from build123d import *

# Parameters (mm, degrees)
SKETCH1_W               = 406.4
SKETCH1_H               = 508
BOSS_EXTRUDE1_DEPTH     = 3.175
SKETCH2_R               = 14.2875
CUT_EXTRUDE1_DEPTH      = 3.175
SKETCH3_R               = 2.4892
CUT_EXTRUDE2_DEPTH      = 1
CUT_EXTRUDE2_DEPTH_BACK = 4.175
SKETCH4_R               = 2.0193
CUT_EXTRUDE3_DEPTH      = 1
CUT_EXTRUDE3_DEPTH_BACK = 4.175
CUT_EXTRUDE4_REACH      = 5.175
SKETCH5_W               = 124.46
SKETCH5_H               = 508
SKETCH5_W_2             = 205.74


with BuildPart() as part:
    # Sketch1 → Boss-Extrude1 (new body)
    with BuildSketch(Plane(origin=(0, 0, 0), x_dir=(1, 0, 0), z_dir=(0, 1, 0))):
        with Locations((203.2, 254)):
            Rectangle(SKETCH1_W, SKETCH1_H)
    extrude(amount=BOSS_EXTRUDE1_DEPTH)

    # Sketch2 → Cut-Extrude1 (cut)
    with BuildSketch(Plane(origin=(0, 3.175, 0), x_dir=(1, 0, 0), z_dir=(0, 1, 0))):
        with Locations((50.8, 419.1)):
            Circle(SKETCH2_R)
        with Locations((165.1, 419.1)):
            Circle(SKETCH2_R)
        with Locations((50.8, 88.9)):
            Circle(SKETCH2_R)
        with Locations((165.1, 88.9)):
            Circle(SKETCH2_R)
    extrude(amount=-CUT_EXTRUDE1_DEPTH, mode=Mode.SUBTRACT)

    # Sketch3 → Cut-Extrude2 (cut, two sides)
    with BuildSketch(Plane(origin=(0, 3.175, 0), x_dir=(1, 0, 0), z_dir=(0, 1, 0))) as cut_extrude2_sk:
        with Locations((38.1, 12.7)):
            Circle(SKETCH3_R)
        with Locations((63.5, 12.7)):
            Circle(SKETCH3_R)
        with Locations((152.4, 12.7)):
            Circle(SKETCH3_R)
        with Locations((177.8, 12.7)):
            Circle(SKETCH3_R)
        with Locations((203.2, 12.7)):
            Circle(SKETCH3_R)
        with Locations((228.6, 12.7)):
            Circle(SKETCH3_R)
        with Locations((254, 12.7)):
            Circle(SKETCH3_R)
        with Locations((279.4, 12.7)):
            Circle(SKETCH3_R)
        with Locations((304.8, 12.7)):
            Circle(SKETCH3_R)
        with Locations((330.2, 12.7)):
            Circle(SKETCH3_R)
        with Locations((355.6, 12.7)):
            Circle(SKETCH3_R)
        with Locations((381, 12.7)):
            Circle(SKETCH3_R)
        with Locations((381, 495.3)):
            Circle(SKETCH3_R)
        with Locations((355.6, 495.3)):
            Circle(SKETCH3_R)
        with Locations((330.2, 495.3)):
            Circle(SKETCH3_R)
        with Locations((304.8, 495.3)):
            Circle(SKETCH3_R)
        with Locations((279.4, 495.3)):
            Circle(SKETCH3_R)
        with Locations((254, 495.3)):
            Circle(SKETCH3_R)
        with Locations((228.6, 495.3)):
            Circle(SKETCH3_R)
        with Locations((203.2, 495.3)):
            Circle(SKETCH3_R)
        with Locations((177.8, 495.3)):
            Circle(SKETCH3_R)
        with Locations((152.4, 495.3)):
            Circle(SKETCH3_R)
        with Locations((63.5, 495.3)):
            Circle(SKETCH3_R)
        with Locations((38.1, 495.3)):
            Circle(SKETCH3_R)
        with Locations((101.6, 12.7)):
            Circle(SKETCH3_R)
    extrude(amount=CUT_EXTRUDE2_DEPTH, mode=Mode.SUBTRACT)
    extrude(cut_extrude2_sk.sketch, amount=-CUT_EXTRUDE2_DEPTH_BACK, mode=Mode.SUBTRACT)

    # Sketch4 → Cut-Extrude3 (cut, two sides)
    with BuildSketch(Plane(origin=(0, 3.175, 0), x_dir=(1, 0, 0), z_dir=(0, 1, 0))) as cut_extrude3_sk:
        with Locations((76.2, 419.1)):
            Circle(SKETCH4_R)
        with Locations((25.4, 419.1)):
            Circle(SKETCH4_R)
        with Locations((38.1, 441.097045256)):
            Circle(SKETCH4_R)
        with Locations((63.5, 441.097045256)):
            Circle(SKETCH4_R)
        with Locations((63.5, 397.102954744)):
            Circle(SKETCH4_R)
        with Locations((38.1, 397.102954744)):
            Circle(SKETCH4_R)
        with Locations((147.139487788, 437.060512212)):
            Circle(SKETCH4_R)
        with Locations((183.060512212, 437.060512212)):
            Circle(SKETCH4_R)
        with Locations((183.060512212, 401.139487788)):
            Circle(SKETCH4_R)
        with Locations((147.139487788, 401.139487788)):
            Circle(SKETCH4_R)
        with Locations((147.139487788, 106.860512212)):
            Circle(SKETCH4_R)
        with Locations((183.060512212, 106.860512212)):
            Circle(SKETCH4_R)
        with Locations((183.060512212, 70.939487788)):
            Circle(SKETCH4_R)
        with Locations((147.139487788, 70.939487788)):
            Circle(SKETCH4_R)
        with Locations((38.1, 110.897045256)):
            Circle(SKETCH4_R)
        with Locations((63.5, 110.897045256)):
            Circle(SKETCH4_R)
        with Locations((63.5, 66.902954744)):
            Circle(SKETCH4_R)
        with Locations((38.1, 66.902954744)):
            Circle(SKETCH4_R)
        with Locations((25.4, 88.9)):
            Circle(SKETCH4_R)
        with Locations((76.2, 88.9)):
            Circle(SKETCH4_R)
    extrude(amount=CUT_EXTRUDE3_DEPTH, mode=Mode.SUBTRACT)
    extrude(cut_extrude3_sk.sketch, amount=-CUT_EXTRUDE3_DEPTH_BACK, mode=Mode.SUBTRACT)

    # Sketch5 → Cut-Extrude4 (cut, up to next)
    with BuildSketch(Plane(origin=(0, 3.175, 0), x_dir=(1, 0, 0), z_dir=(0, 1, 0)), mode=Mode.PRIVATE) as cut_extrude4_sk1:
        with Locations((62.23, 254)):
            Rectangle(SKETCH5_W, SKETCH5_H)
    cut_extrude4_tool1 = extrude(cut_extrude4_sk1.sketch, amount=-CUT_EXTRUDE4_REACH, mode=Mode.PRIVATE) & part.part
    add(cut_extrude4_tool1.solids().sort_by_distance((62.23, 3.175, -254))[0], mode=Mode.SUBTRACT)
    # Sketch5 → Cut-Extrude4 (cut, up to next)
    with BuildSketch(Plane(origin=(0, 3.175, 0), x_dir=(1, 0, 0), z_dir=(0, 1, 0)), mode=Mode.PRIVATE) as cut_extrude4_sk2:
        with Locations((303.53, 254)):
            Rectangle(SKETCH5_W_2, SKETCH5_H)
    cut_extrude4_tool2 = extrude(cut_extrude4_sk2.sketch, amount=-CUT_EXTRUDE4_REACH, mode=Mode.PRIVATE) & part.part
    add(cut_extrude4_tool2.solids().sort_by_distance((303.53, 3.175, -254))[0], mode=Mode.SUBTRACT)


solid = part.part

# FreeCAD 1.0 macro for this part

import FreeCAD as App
import Part
import Sketcher

V = App.Vector
Q = App.Units.Quantity


def add_polygon(sketch, points):
    """Adds a closed chain of lines whose ends are joined by coincident constraints."""
    first, n = sketch.GeometryCount, len(points)
    for a, b in zip(points, points[1:] + points[:1]):
        sketch.addGeometry(Part.LineSegment(App.Vector(*a, 0), App.Vector(*b, 0)), False)
    for i in range(n):
        sketch.addConstraint(Sketcher.Constraint("Coincident", first + i, 2, first + (i + 1) % n, 1))

doc = App.newDocument("Part")
body = doc.addObject("PartDesign::Body", "Body")

# Sketch on XZ plane
sketch1 = body.newObject("Sketcher::SketchObject", "Sketch")
sketch1.AttachmentSupport = (doc.getObject("XZ_Plane"), [""])
sketch1.MapMode = "FlatFace"
add_polygon(sketch1, [(0, -508), (0, 0), (406, 0), (406, -508)])  # lines 0-3
sketch1.addConstraint([
    Sketcher.Constraint("Vertical", 0),
    Sketcher.Constraint("Horizontal", 1),
    Sketcher.Constraint("Vertical", 2),
    Sketcher.Constraint("Horizontal", 3),
    Sketcher.Constraint("Coincident", 0, 2, -1, 1),
    Sketcher.Constraint("DistanceX", 1, 1, 1, 2, Q("16 in")),
    Sketcher.Constraint("DistanceY", 0, 1, 0, 2, Q("20 in")),
])
pad1 = body.newObject("PartDesign::Pad", "Pad")
pad1.Profile = sketch1
pad1.Length = Q("0.125 in")
pad1.Reversed = True

# Sketch on XZ plane
sketch2 = body.newObject("Sketcher::SketchObject", "Sketch001")
sketch2.AttachmentSupport = (doc.getObject("XZ_Plane"), [""])
sketch2.MapMode = "FlatFace"
sketch2.AttachmentOffset = App.Placement(V(0, 0, -0.125 * 25.4), App.Rotation())
sketch2.addGeometry([
    Part.Circle(V(51, -419, 0), V(0, 0, 1), 14),
    Part.Circle(V(165, -419, 0), V(0, 0, 1), 14),
    Part.Circle(V(51, -89, 0), V(0, 0, 1), 14),
    Part.Circle(V(165, -89, 0), V(0, 0, 1), 14),
], False)
sketch2.addConstraint([
    Sketcher.Constraint("Equal", 0, 1),
    Sketcher.Constraint("Equal", 1, 2),
    Sketcher.Constraint("Equal", 2, 3),
    Sketcher.Constraint("Horizontal", 0, 3, 1, 3),
    Sketcher.Constraint("Horizontal", 2, 3, 3, 3),
    Sketcher.Constraint("Vertical", 0, 3, 2, 3),
    Sketcher.Constraint("Vertical", 1, 3, 3, 3),
    Sketcher.Constraint("Diameter", 0, Q("1.125 in")),
    Sketcher.Constraint("DistanceX", -1, 1, 0, 3, Q("2 in")),
    Sketcher.Constraint("DistanceY", 0, 3, 2, 3, Q("13 in")),
    Sketcher.Constraint("DistanceY", 0, 3, -1, 1, Q("16.5 in")),
    Sketcher.Constraint("DistanceX", -1, 1, 1, 3, Q("6.5 in")),
])
pocket1 = body.newObject("PartDesign::Pocket", "Pocket")
pocket1.Profile = sketch2
pocket1.Length = Q("0.125 in")
pocket1.Reversed = True

# Sketch on XZ plane
sketch3 = body.newObject("Sketcher::SketchObject", "Sketch002")
sketch3.AttachmentSupport = (doc.getObject("XZ_Plane"), [""])
sketch3.MapMode = "FlatFace"
sketch3.AttachmentOffset = App.Placement(V(0, 0, -0.125 * 25.4), App.Rotation())
sketch3.addGeometry([
    Part.Circle(V(38.1, -12.7, 0), V(0, 0, 1), 2.5),  # 0
    Part.Circle(V(63.5, -12.7, 0), V(0, 0, 1), 2.5),  # 1
    Part.Circle(V(152.4, -12.7, 0), V(0, 0, 1), 2.5),  # 2
    Part.Circle(V(177.8, -12.7, 0), V(0, 0, 1), 2.5),  # 3
    Part.Circle(V(203.2, -12.7, 0), V(0, 0, 1), 2.5),  # 4
    Part.Circle(V(228.6, -12.7, 0), V(0, 0, 1), 2.5),  # 5
    Part.Circle(V(254, -12.7, 0), V(0, 0, 1), 2.5),  # 6
    Part.Circle(V(279.4, -12.7, 0), V(0, 0, 1), 2.5),  # 7
    Part.Circle(V(304.8, -12.7, 0), V(0, 0, 1), 2.5),  # 8
    Part.Circle(V(330.2, -12.7, 0), V(0, 0, 1), 2.5),  # 9
    Part.Circle(V(355.6, -12.7, 0), V(0, 0, 1), 2.5),  # 10
    Part.Circle(V(381, -12.7, 0), V(0, 0, 1), 2.5),  # 11
    Part.Circle(V(381, -495.3, 0), V(0, 0, 1), 2.5),  # 12
    Part.Circle(V(355.6, -495.3, 0), V(0, 0, 1), 2.5),  # 13
    Part.Circle(V(330.2, -495.3, 0), V(0, 0, 1), 2.5),  # 14
    Part.Circle(V(304.8, -495.3, 0), V(0, 0, 1), 2.5),  # 15
    Part.Circle(V(279.4, -495.3, 0), V(0, 0, 1), 2.5),  # 16
    Part.Circle(V(254, -495.3, 0), V(0, 0, 1), 2.5),  # 17
    Part.Circle(V(228.6, -495.3, 0), V(0, 0, 1), 2.5),  # 18
    Part.Circle(V(203.2, -495.3, 0), V(0, 0, 1), 2.5),  # 19
    Part.Circle(V(177.8, -495.3, 0), V(0, 0, 1), 2.5),  # 20
    Part.Circle(V(152.4, -495.3, 0), V(0, 0, 1), 2.5),  # 21
    Part.Circle(V(63.5, -495.3, 0), V(0, 0, 1), 2.5),  # 22
    Part.Circle(V(38.1, -495.3, 0), V(0, 0, 1), 2.5),  # 23
    Part.Circle(V(101.6, -12.7, 0), V(0, 0, 1), 2.5),  # 24
], False)
sketch3.addConstraint([
    Sketcher.Constraint("Equal", 0, 1),
    Sketcher.Constraint("Equal", 1, 2),
    Sketcher.Constraint("Equal", 2, 3),
    Sketcher.Constraint("Equal", 3, 4),
    Sketcher.Constraint("Equal", 4, 5),
    Sketcher.Constraint("Equal", 5, 6),
    Sketcher.Constraint("Equal", 6, 7),
    Sketcher.Constraint("Equal", 7, 8),
    Sketcher.Constraint("Equal", 8, 9),
    Sketcher.Constraint("Equal", 9, 10),
    Sketcher.Constraint("Equal", 10, 11),
    Sketcher.Constraint("Equal", 11, 12),
    Sketcher.Constraint("Equal", 12, 13),
    Sketcher.Constraint("Equal", 13, 14),
    Sketcher.Constraint("Equal", 14, 15),
    Sketcher.Constraint("Equal", 15, 16),
    Sketcher.Constraint("Equal", 16, 17),
    Sketcher.Constraint("Equal", 17, 18),
    Sketcher.Constraint("Equal", 18, 19),
    Sketcher.Constraint("Equal", 19, 20),
    Sketcher.Constraint("Equal", 20, 21),
    Sketcher.Constraint("Equal", 21, 22),
    Sketcher.Constraint("Equal", 22, 23),
    Sketcher.Constraint("Equal", 23, 24),
    Sketcher.Constraint("Horizontal", 0, 3, 1, 3),
    Sketcher.Constraint("Horizontal", 1, 3, 2, 3),
    Sketcher.Constraint("Horizontal", 2, 3, 3, 3),
    Sketcher.Constraint("Horizontal", 3, 3, 4, 3),
    Sketcher.Constraint("Horizontal", 4, 3, 5, 3),
    Sketcher.Constraint("Horizontal", 5, 3, 6, 3),
    Sketcher.Constraint("Horizontal", 6, 3, 7, 3),
    Sketcher.Constraint("Horizontal", 7, 3, 8, 3),
    Sketcher.Constraint("Horizontal", 8, 3, 9, 3),
    Sketcher.Constraint("Horizontal", 9, 3, 10, 3),
    Sketcher.Constraint("Horizontal", 10, 3, 11, 3),
    Sketcher.Constraint("Horizontal", 12, 3, 13, 3),
    Sketcher.Constraint("Horizontal", 13, 3, 14, 3),
    Sketcher.Constraint("Horizontal", 14, 3, 15, 3),
    Sketcher.Constraint("Horizontal", 15, 3, 16, 3),
    Sketcher.Constraint("Horizontal", 16, 3, 17, 3),
    Sketcher.Constraint("Horizontal", 17, 3, 18, 3),
    Sketcher.Constraint("Horizontal", 18, 3, 19, 3),
    Sketcher.Constraint("Horizontal", 19, 3, 20, 3),
    Sketcher.Constraint("Horizontal", 20, 3, 21, 3),
    Sketcher.Constraint("Horizontal", 21, 3, 22, 3),
    Sketcher.Constraint("Horizontal", 22, 3, 23, 3),
    Sketcher.Constraint("Horizontal", 11, 3, 24, 3),
    Sketcher.Constraint("Vertical", 11, 3, 12, 3),
    Sketcher.Constraint("Vertical", 10, 3, 13, 3),
    Sketcher.Constraint("Vertical", 9, 3, 14, 3),
    Sketcher.Constraint("Vertical", 8, 3, 15, 3),
    Sketcher.Constraint("Vertical", 7, 3, 16, 3),
    Sketcher.Constraint("Vertical", 6, 3, 17, 3),
    Sketcher.Constraint("Vertical", 5, 3, 18, 3),
    Sketcher.Constraint("Vertical", 4, 3, 19, 3),
    Sketcher.Constraint("Vertical", 3, 3, 20, 3),
    Sketcher.Constraint("Vertical", 2, 3, 21, 3),
    Sketcher.Constraint("Vertical", 1, 3, 22, 3),
    Sketcher.Constraint("Vertical", 0, 3, 23, 3),
    Sketcher.Constraint("Diameter", 0, Q("0.196 in")),
    Sketcher.Constraint("DistanceX", -1, 1, 2, 3, Q("6 in")),
    Sketcher.Constraint("DistanceX", -1, 1, 3, 3, Q("7 in")),
    Sketcher.Constraint("DistanceX", -1, 1, 4, 3, Q("8 in")),
    Sketcher.Constraint("DistanceX", -1, 1, 5, 3, Q("9 in")),
    Sketcher.Constraint("DistanceX", -1, 1, 6, 3, Q("10 in")),
    Sketcher.Constraint("DistanceX", -1, 1, 7, 3, Q("11 in")),
    Sketcher.Constraint("DistanceX", -1, 1, 8, 3, Q("12 in")),
    Sketcher.Constraint("DistanceX", -1, 1, 9, 3, Q("13 in")),
    Sketcher.Constraint("DistanceX", -1, 1, 10, 3, Q("14 in")),
    Sketcher.Constraint("DistanceX", -1, 1, 11, 3, Q("15 in")),
    Sketcher.Constraint("DistanceX", -1, 1, 24, 3, Q("4 in")),
    Sketcher.Constraint("DistanceX", 0, 3, 1, 3, Q("1 in")),
    Sketcher.Constraint("DistanceY", 12, 3, 11, 3, Q("19 in")),
    Sketcher.Constraint("DistanceX", -1, 1, 0, 3, Q("1.5 in")),
    Sketcher.Constraint("DistanceY", 0, 3, -1, 1, Q("0.5 in")),
])
pocket2 = body.newObject("PartDesign::Pocket", "Pocket001")
pocket2.Profile = sketch3
pocket2.Type = "ThroughAll"
pocket2.Midplane = True

# Sketch on XZ plane
sketch4 = body.newObject("Sketcher::SketchObject", "Sketch003")
sketch4.AttachmentSupport = (doc.getObject("XZ_Plane"), [""])
sketch4.MapMode = "FlatFace"
sketch4.AttachmentOffset = App.Placement(V(0, 0, -0.125 * 25.4), App.Rotation())
sketch4.addGeometry([
    Part.Circle(V(76.2, -419.1, 0), V(0, 0, 1), 2),  # 0
    Part.Circle(V(25.4, -419.1, 0), V(0, 0, 1), 2),  # 1
    Part.Circle(V(38.1, -441.1, 0), V(0, 0, 1), 2),  # 2
    Part.Circle(V(63.5, -441.1, 0), V(0, 0, 1), 2),  # 3
    Part.Circle(V(63.5, -397.1, 0), V(0, 0, 1), 2),  # 4
    Part.Circle(V(38.1, -397.1, 0), V(0, 0, 1), 2),  # 5
    Part.Circle(V(147.1, -437.1, 0), V(0, 0, 1), 2),  # 6
    Part.Circle(V(183.1, -437.1, 0), V(0, 0, 1), 2),  # 7
    Part.Circle(V(183.1, -401.1, 0), V(0, 0, 1), 2),  # 8
    Part.Circle(V(147.1, -401.1, 0), V(0, 0, 1), 2),  # 9
    Part.Circle(V(147.1, -106.9, 0), V(0, 0, 1), 2),  # 10
    Part.Circle(V(183.1, -106.9, 0), V(0, 0, 1), 2),  # 11
    Part.Circle(V(183.1, -70.9, 0), V(0, 0, 1), 2),  # 12
    Part.Circle(V(147.1, -70.9, 0), V(0, 0, 1), 2),  # 13
    Part.Circle(V(38.1, -110.9, 0), V(0, 0, 1), 2),  # 14
    Part.Circle(V(63.5, -110.9, 0), V(0, 0, 1), 2),  # 15
    Part.Circle(V(63.5, -66.9, 0), V(0, 0, 1), 2),  # 16
    Part.Circle(V(38.1, -66.9, 0), V(0, 0, 1), 2),  # 17
    Part.Circle(V(25.4, -88.9, 0), V(0, 0, 1), 2),  # 18
    Part.Circle(V(76.2, -88.9, 0), V(0, 0, 1), 2),  # 19
], False)
sketch4.addConstraint([
    Sketcher.Constraint("Equal", 0, 1),
    Sketcher.Constraint("Equal", 1, 2),
    Sketcher.Constraint("Equal", 2, 3),
    Sketcher.Constraint("Equal", 3, 4),
    Sketcher.Constraint("Equal", 4, 5),
    Sketcher.Constraint("Equal", 5, 6),
    Sketcher.Constraint("Equal", 6, 7),
    Sketcher.Constraint("Equal", 7, 8),
    Sketcher.Constraint("Equal", 8, 9),
    Sketcher.Constraint("Equal", 9, 10),
    Sketcher.Constraint("Equal", 10, 11),
    Sketcher.Constraint("Equal", 11, 12),
    Sketcher.Constraint("Equal", 12, 13),
    Sketcher.Constraint("Equal", 13, 14),
    Sketcher.Constraint("Equal", 14, 15),
    Sketcher.Constraint("Equal", 15, 16),
    Sketcher.Constraint("Equal", 16, 17),
    Sketcher.Constraint("Equal", 17, 18),
    Sketcher.Constraint("Equal", 18, 19),
    Sketcher.Constraint("Horizontal", 0, 3, 1, 3),
    Sketcher.Constraint("Horizontal", 2, 3, 3, 3),
    Sketcher.Constraint("Horizontal", 4, 3, 5, 3),
    Sketcher.Constraint("Horizontal", 6, 3, 7, 3),
    Sketcher.Constraint("Horizontal", 8, 3, 9, 3),
    Sketcher.Constraint("Horizontal", 10, 3, 11, 3),
    Sketcher.Constraint("Horizontal", 12, 3, 13, 3),
    Sketcher.Constraint("Horizontal", 14, 3, 15, 3),
    Sketcher.Constraint("Horizontal", 16, 3, 17, 3),
    Sketcher.Constraint("Horizontal", 18, 3, 19, 3),
    Sketcher.Constraint("Vertical", 3, 3, 4, 3),
    Sketcher.Constraint("Vertical", 2, 3, 5, 3),
    Sketcher.Constraint("Vertical", 7, 3, 8, 3),
    Sketcher.Constraint("Vertical", 6, 3, 9, 3),
    Sketcher.Constraint("Vertical", 9, 3, 10, 3),
    Sketcher.Constraint("Vertical", 8, 3, 11, 3),
    Sketcher.Constraint("Vertical", 11, 3, 12, 3),
    Sketcher.Constraint("Vertical", 10, 3, 13, 3),
    Sketcher.Constraint("Vertical", 5, 3, 14, 3),
    Sketcher.Constraint("Vertical", 4, 3, 15, 3),
    Sketcher.Constraint("Vertical", 15, 3, 16, 3),
    Sketcher.Constraint("Vertical", 14, 3, 17, 3),
    Sketcher.Constraint("Vertical", 1, 3, 18, 3),
    Sketcher.Constraint("Vertical", 0, 3, 19, 3),
    Sketcher.Constraint("Diameter", 0, Q("0.159 in")),
    Sketcher.Constraint("DistanceX", -1, 1, 0, 3, Q("3 in")),
    Sketcher.Constraint("DistanceX", -1, 1, 1, 3, Q("1 in")),
    Sketcher.Constraint("DistanceX", 2, 3, 3, 3, Q("1 in")),
    Sketcher.Constraint("DistanceY", 8, 3, 12, 3, Q("13 in")),
    Sketcher.Constraint("DistanceY", 0, 3, -1, 1, Q("16.5 in")),
    Sketcher.Constraint("DistanceX", -1, 1, 2, 3, Q("1.5 in")),
    Sketcher.Constraint("DistanceY", 18, 3, -1, 1, Q("3.5 in")),
    Sketcher.Constraint("DistanceY", 3, 3, 4, 3, 43.994091),
    Sketcher.Constraint("DistanceY", 5, 3, 14, 3, 286.205909),
    Sketcher.Constraint("DistanceY", 15, 3, 16, 3, 43.994091),
    Sketcher.Constraint("DistanceY", 2, 3, -1, 1, 441.097045),
    Sketcher.Constraint("DistanceX", -1, 1, 6, 3, 147.139488),
    Sketcher.Constraint("DistanceY", 6, 3, -1, 1, 437.060512),
    Sketcher.Constraint("DistanceX", -1, 1, 7, 3, 183.060512),
    Sketcher.Constraint("DistanceY", 8, 3, -1, 1, 401.139488),
    Sketcher.Constraint("DistanceY", 10, 3, -1, 1, 106.860512),
])
pocket3 = body.newObject("PartDesign::Pocket", "Pocket002")
pocket3.Profile = sketch4
pocket3.Type = "ThroughAll"
pocket3.Midplane = True

# Sketch on XZ plane
sketch5 = body.newObject("Sketcher::SketchObject", "Sketch004")
sketch5.AttachmentSupport = (doc.getObject("XZ_Plane"), [""])
sketch5.MapMode = "FlatFace"
sketch5.AttachmentOffset = App.Placement(V(0, 0, -0.125 * 25.4), App.Rotation())
add_polygon(sketch5, [(0, -508), (0, 0), (124, 0), (124, -508)])  # lines 0-3
sketch5.addConstraint([
    Sketcher.Constraint("Vertical", 0),
    Sketcher.Constraint("Horizontal", 1),
    Sketcher.Constraint("Vertical", 2),
    Sketcher.Constraint("Horizontal", 3),
    Sketcher.Constraint("Coincident", 0, 2, -1, 1),
    Sketcher.Constraint("DistanceY", 0, 1, 0, 2, Q("20 in")),
    Sketcher.Constraint("DistanceX", 1, 1, 1, 2, Q("4.9 in")),
])
pocket4 = body.newObject("PartDesign::Pocket", "Pocket003")
pocket4.Profile = sketch5
pocket4.Type = "UpToFirst"
pocket4.Reversed = True

# Sketch on XZ plane
sketch6 = body.newObject("Sketcher::SketchObject", "Sketch005")
sketch6.AttachmentSupport = (doc.getObject("XZ_Plane"), [""])
sketch6.MapMode = "FlatFace"
sketch6.AttachmentOffset = App.Placement(V(0, 0, -0.125 * 25.4), App.Rotation())
add_polygon(sketch6, [(201, -508), (201, 0), (406, 0), (406, -508)])  # lines 0-3
sketch6.addConstraint([
    Sketcher.Constraint("Vertical", 0),
    Sketcher.Constraint("Horizontal", 1),
    Sketcher.Constraint("Vertical", 2),
    Sketcher.Constraint("Horizontal", 3),
    Sketcher.Constraint("PointOnObject", 0, 2, -1),
    Sketcher.Constraint("DistanceY", 0, 1, 0, 2, Q("20 in")),
    Sketcher.Constraint("DistanceX", 1, 1, 1, 2, Q("8.1 in")),
    Sketcher.Constraint("DistanceX", -1, 1, 1, 2, Q("16 in")),
])
pocket5 = body.newObject("PartDesign::Pocket", "Pocket004")
pocket5.Profile = sketch6
pocket5.Type = "UpToFirst"
pocket5.Reversed = True

doc.recompute()
